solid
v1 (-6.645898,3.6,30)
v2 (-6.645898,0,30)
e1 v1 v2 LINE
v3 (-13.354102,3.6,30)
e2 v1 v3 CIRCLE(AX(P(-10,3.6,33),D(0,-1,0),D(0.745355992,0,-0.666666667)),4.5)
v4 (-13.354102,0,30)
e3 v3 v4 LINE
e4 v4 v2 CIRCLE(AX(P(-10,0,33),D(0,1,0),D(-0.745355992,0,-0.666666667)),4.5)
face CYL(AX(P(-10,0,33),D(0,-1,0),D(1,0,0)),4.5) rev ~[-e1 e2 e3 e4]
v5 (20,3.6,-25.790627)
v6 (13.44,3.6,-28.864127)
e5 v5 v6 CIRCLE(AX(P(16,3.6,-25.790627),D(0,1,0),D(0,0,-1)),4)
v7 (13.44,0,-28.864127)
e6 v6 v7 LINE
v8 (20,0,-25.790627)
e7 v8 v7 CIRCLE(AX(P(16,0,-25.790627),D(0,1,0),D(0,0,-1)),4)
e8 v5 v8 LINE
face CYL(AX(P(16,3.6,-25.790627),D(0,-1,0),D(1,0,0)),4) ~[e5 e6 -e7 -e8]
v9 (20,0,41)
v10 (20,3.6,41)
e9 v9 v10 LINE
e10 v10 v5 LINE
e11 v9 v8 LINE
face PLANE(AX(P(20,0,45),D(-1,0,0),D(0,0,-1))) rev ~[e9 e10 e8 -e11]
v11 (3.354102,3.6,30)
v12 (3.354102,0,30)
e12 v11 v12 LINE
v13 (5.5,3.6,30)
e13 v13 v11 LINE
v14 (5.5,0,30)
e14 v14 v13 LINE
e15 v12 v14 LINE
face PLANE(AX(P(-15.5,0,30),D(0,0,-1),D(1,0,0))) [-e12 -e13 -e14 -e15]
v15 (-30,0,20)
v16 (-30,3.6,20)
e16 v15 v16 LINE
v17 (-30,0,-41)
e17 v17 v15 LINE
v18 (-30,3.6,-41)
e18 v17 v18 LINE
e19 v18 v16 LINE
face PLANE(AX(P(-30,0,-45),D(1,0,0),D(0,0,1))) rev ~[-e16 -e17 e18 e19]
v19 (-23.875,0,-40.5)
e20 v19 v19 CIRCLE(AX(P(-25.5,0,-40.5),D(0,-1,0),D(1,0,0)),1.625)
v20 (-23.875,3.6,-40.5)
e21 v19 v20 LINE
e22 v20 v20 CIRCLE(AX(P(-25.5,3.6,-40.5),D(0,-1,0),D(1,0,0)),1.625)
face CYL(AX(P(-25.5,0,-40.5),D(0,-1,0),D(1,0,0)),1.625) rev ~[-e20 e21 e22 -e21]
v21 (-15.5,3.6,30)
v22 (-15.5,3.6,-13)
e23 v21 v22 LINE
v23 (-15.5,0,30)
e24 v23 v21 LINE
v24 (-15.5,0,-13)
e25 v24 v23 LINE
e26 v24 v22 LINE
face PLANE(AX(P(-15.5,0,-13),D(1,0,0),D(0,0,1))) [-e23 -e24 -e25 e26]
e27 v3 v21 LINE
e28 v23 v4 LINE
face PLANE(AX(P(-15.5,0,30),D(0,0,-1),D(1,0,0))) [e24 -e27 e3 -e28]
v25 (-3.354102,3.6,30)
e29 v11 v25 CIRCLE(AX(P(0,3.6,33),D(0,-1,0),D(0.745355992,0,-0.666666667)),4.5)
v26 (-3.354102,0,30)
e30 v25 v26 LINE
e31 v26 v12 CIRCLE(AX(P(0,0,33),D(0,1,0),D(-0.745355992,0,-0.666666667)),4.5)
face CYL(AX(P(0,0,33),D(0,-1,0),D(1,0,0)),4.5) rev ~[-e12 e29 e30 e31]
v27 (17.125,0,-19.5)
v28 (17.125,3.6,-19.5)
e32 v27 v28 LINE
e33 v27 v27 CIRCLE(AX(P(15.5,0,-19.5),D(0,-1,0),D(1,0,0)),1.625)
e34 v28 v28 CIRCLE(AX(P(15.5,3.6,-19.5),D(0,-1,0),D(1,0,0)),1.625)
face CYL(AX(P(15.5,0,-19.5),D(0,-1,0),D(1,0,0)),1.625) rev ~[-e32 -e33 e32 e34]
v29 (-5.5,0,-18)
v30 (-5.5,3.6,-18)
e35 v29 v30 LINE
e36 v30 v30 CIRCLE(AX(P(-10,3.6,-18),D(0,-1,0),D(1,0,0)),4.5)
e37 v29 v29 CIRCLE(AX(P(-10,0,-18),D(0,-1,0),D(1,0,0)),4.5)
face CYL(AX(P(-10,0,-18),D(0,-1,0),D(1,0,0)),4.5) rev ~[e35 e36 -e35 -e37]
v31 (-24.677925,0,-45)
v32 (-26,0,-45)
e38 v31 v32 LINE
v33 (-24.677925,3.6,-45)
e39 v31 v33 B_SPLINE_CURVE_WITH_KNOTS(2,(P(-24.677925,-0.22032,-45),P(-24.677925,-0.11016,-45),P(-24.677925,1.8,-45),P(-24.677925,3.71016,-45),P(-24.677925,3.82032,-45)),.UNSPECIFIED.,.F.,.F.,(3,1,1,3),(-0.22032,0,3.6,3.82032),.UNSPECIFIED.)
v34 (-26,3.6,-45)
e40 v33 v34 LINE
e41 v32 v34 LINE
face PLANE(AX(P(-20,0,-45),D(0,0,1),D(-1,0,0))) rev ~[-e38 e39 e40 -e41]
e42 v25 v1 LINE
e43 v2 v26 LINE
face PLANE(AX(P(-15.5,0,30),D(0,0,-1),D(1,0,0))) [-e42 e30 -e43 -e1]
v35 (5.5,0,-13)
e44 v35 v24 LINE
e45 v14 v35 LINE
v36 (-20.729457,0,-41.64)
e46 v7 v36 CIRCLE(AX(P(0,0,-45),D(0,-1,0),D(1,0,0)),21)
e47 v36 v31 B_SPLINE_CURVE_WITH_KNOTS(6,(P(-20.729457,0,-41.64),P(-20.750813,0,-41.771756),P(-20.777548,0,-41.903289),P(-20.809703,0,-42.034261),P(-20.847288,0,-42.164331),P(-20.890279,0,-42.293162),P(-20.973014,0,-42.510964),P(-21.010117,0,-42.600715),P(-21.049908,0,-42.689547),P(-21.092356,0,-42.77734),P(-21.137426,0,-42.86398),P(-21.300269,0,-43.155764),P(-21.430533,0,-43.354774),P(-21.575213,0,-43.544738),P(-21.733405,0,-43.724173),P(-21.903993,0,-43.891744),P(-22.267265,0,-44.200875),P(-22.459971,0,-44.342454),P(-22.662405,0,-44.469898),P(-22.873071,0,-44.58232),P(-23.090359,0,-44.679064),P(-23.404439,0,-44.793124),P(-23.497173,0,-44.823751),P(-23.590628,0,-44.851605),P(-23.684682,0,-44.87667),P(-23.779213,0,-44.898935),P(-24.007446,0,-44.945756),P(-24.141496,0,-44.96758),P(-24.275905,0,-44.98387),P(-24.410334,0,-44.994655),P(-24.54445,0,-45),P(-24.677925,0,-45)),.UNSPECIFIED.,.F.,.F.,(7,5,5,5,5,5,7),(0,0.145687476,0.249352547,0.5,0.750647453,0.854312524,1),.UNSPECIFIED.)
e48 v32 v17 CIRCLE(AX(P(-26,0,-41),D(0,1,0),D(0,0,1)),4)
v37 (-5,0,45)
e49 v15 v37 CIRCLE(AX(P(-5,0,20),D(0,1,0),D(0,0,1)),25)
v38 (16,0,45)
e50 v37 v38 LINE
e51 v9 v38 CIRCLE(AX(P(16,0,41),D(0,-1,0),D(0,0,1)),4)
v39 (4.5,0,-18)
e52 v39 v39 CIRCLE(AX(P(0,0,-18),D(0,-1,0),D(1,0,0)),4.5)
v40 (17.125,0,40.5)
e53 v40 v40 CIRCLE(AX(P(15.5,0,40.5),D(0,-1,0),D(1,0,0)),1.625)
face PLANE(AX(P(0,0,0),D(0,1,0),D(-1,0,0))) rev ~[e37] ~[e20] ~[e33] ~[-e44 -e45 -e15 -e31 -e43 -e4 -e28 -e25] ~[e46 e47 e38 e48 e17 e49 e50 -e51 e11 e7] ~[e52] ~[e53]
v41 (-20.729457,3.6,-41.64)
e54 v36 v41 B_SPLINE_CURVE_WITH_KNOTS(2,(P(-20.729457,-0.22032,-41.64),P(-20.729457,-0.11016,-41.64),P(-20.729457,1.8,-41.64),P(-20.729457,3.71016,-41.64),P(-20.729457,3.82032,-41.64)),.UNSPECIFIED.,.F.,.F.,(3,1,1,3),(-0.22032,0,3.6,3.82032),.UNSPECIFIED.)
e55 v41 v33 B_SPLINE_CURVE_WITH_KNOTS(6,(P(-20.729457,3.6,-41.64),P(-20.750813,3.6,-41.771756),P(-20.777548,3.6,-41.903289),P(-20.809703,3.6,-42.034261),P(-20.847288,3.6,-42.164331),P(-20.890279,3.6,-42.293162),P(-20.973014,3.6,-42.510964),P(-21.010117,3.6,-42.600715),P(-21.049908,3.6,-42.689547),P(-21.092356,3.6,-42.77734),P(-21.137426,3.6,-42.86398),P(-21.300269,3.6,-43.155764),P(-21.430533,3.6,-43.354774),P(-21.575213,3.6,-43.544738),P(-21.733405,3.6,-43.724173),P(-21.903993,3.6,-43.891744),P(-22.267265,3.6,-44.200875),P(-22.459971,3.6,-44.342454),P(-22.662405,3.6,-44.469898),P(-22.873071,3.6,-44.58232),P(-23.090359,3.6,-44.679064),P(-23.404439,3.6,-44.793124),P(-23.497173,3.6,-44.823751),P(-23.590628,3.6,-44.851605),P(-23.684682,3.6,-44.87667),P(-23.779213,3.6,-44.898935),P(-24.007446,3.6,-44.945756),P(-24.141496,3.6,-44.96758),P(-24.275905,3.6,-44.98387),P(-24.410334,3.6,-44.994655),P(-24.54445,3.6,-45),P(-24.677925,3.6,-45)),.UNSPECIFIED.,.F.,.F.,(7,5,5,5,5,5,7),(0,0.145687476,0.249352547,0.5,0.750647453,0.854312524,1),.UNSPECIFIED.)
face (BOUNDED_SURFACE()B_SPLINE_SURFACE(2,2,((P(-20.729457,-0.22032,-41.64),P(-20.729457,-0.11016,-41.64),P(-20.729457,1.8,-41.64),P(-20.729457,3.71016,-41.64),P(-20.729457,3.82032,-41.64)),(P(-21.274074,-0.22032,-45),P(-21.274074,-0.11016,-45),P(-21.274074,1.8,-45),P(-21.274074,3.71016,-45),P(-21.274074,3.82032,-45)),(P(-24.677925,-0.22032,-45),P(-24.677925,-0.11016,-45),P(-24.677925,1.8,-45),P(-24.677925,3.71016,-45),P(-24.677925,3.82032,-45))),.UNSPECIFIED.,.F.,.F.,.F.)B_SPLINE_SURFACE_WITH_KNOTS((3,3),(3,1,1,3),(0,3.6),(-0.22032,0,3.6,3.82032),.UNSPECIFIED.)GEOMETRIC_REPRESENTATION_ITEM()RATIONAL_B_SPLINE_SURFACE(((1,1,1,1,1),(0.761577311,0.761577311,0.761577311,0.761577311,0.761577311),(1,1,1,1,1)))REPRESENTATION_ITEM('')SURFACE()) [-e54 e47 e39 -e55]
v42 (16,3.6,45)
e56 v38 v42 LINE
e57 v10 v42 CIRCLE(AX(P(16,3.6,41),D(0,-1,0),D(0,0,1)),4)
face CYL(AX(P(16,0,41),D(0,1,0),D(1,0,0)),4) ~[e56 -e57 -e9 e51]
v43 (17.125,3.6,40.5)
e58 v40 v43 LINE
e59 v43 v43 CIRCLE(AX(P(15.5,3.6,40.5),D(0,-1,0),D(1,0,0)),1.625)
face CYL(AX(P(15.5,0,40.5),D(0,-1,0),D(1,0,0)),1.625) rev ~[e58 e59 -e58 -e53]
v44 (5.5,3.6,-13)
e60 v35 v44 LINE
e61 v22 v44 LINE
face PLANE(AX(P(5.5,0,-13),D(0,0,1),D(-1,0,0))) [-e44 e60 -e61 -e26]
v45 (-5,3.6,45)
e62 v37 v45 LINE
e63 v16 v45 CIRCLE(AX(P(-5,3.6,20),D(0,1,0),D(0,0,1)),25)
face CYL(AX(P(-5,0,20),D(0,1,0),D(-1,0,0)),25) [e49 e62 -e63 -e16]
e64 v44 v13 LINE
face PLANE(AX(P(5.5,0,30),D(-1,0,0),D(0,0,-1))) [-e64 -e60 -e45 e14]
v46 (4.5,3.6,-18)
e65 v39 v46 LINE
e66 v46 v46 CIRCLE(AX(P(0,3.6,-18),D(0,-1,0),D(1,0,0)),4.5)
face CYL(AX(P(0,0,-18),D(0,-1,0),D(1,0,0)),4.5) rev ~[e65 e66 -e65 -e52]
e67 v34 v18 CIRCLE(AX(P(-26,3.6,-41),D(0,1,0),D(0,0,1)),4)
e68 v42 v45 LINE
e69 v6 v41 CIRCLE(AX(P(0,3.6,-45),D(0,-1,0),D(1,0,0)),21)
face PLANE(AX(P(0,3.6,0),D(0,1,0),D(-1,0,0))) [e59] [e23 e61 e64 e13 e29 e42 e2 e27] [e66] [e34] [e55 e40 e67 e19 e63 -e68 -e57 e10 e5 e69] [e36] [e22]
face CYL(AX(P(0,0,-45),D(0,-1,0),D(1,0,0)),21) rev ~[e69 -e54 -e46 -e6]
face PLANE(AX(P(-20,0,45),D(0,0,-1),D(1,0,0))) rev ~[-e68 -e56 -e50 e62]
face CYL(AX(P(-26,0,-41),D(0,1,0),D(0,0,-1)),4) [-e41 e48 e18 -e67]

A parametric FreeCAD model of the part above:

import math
import FreeCAD as App
import Part
import Sketcher


def edges_at(feature, points):
    """Names of the edges that pass closest to the given points."""
    edges = feature.Shape.Edges
    near = lambda p: min(range(len(edges)), key=lambda i: edges[i].distToShape(Part.Vertex(*p))[0])
    return sorted({f"Edge{near(p) + 1}" for p in points})


def add_polygon(sketch, points):
    """Adds a closed chain of lines whose ends are joined by coincident constraints."""
    first, n = sketch.GeometryCount, len(points)
    for a, b in zip(points, points[1:] + points[:1]):
        sketch.addGeometry(Part.LineSegment(App.Vector(*a, 0), App.Vector(*b, 0)), False)
    for i in range(n):
        sketch.addConstraint(Sketcher.Constraint("Coincident", first + i, 2, first + (i + 1) % n, 1))

doc = App.newDocument("Part")
params = doc.addObject("Spreadsheet::Sheet", "Params")
for row, (alias, value) in enumerate([
    ("sketch1_radius", "20 mm"),
    ("sketch1_width", "10 mm"),
    ("sketch1_height", "90 mm"),
    ("pad1_length", "3.6 mm"),
    ("fillet_radius", "4 mm"),
    ("sketch2_diameter", "42 mm"),
    ("pocket1_length", "10 mm"),
    ("fillet2_radius", "4 mm"),
    ("sketch3_diameter", "3.25 mm"),
    ("pocket2_length", "7 mm"),
    ("sketch4_width", "21 mm"),
    ("sketch4_height", "43 mm"),
    ("pocket3_length", "10 mm"),
    ("sketch5_diameter", "9 mm"),
    ("pocket4_length", "10 mm"),
    ("fillet3_radius", "25 mm"),
], start=1):
    params.set(f"A{row}", alias)
    params.set(f"B{row}", "=" + value)
    params.setAlias(f"B{row}", alias)

body = doc.addObject("PartDesign::Body", "Body")

sketch1 = body.newObject("Sketcher::SketchObject", "Sketch")
sketch1.AttachmentSupport = (doc.getObject("XZ_Plane"), [""])
sketch1.MapMode = "FlatFace"
sketch1.addGeometry(Part.LineSegment(App.Vector(20, 45, 0), App.Vector(20, -45, 0)), False)
sketch1.addGeometry(Part.ArcOfCircle(Part.Circle(App.Vector(0, -45, 0), App.Vector(0, 0, 1), 20), math.radians(180), math.radians(360)), False)
sketch1.addGeometry(Part.LineSegment(App.Vector(-20, -45, 0), App.Vector(-30, -45, 0)), False)
sketch1.addGeometry(Part.LineSegment(App.Vector(-30, -45, 0), App.Vector(-30, 45, 0)), False)
sketch1.addGeometry(Part.LineSegment(App.Vector(-30, 45, 0), App.Vector(20, 45, 0)), False)
sketch1.addConstraint(Sketcher.Constraint("Tangent", 0, 2, 1, 2))
sketch1.addConstraint(Sketcher.Constraint("Coincident", 1, 1, 2, 1))
sketch1.addConstraint(Sketcher.Constraint("Coincident", 2, 2, 3, 1))
sketch1.addConstraint(Sketcher.Constraint("Coincident", 3, 2, 4, 1))
sketch1.addConstraint(Sketcher.Constraint("Coincident", 4, 2, 0, 1))
sketch1.addConstraint(Sketcher.Constraint("Vertical", 0))
sketch1.addConstraint(Sketcher.Constraint("Horizontal", 2))
sketch1.addConstraint(Sketcher.Constraint("Vertical", 3))
sketch1.addConstraint(Sketcher.Constraint("Horizontal", 4))
sketch1.addConstraint(Sketcher.Constraint("Symmetric", 1, 1, 4, 2, -1, 1))
sketch1.addConstraint(Sketcher.Constraint("Horizontal", 0, 2, 1, 1))
sketch1.addConstraint(Sketcher.Constraint("Radius", 1, 20.0))
sketch1.addConstraint(Sketcher.Constraint("DistanceX", 2, 2, 2, 1, 10.0))
sketch1.addConstraint(Sketcher.Constraint("DistanceY", 0, 2, 0, 1, 90.0))
sketch1.setExpression("Constraints[11]", "Params.sketch1_radius")
sketch1.setExpression("Constraints[12]", "Params.sketch1_width")
sketch1.setExpression("Constraints[13]", "Params.sketch1_height")
pad1 = body.newObject("PartDesign::Pad", "Pad")
pad1.Profile = sketch1
pad1.setExpression("Length", "Params.pad1_length")
pad1.Reversed = True
doc.recompute()

fillet = body.newObject("PartDesign::Fillet", "Fillet")
fillet.Base = (pad1, edges_at(pad1, [(-20, 1.8, -45), (-30, 1.8, -45), (20, 1.8, 45)]))
fillet.setExpression("Radius", "Params.fillet_radius")

sketch2 = body.newObject("Sketcher::SketchObject", "Sketch001")
sketch2.AttachmentSupport = (doc.getObject("XZ_Plane"), [""])
sketch2.MapMode = "FlatFace"
sketch2.addGeometry(Part.Circle(App.Vector(0, -45, 0), App.Vector(0, 0, 1), 21), False)
sketch2.addConstraint(Sketcher.Constraint("PointOnObject", 0, 3, -2))
sketch2.addConstraint(Sketcher.Constraint("Diameter", 0, 42.0))
sketch2.addConstraint(Sketcher.Constraint("DistanceY", 0, 3, -1, 1, 45.0))
sketch2.setExpression("Constraints[1]", "Params.sketch2_diameter")
pocket1 = body.newObject("PartDesign::Pocket", "Pocket")
pocket1.Profile = sketch2
pocket1.setExpression("Length", "Params.pocket1_length")
doc.recompute()

fillet2 = body.newObject("PartDesign::Fillet", "Fillet001")
fillet2.Base = (pocket1, edges_at(pocket1, [(20, 1.8, -38.597), (-20.974, 1.8, -46.04)]))
fillet2.setExpression("Radius", "Params.fillet2_radius")

sketch3 = body.newObject("Sketcher::SketchObject", "Sketch002")
sketch3.AttachmentSupport = (doc.getObject("XZ_Plane"), [""])
sketch3.MapMode = "FlatFace"
sketch3.addGeometry(Part.Circle(App.Vector(-25.5, -40.5, 0), App.Vector(0, 0, 1), 1.6), False)
sketch3.addGeometry(Part.Circle(App.Vector(15.5, -19.5, 0), App.Vector(0, 0, 1), 1.6), False)
sketch3.addGeometry(Part.Circle(App.Vector(15.5, 40.5, 0), App.Vector(0, 0, 1), 1.6), False)
sketch3.addConstraint(Sketcher.Constraint("Equal", 0, 1))
sketch3.addConstraint(Sketcher.Constraint("Equal", 1, 2))
sketch3.addConstraint(Sketcher.Constraint("Vertical", 1, 3, 2, 3))
sketch3.addConstraint(Sketcher.Constraint("Diameter", 0, 3.25))
sketch3.addConstraint(Sketcher.Constraint("DistanceY", 1, 3, 2, 3, 60.0))
sketch3.addConstraint(Sketcher.Constraint("DistanceX", 0, 3, 1, 3, 41.0))
sketch3.addConstraint(Sketcher.Constraint("DistanceY", 0, 3, 1, 3, 21.0))
sketch3.addConstraint(Sketcher.Constraint("DistanceX", 0, 3, -1, 1, 25.5))
sketch3.addConstraint(Sketcher.Constraint("DistanceY", 0, 3, -1, 1, 40.5))
sketch3.setExpression("Constraints[3]", "Params.sketch3_diameter")
pocket2 = body.newObject("PartDesign::Pocket", "Pocket001")
pocket2.Profile = sketch3
pocket2.setExpression("Length", "Params.pocket2_length")

sketch4 = body.newObject("Sketcher::SketchObject", "Sketch003")
sketch4.AttachmentSupport = (doc.getObject("XZ_Plane"), [""])
sketch4.MapMode = "FlatFace"
add_polygon(sketch4, [(6, 30), (-16, 30), (-16, -13), (6, -13)])
sketch4.addConstraint(Sketcher.Constraint("Horizontal", 0))
sketch4.addConstraint(Sketcher.Constraint("Vertical", 1))
sketch4.addConstraint(Sketcher.Constraint("Horizontal", 2))
sketch4.addConstraint(Sketcher.Constraint("Vertical", 3))
sketch4.addConstraint(Sketcher.Constraint("DistanceX", 0, 2, 0, 1, 21.0))
sketch4.addConstraint(Sketcher.Constraint("DistanceY", 1, 2, 1, 1, 43.0))
sketch4.addConstraint(Sketcher.Constraint("DistanceY", -1, 1, 0, 2, 30.0))
sketch4.addConstraint(Sketcher.Constraint("DistanceX", 0, 2, -1, 1, 15.5))
sketch4.setExpression("Constraints[8]", "Params.sketch4_width")
sketch4.setExpression("Constraints[9]", "Params.sketch4_height")
pocket3 = body.newObject("PartDesign::Pocket", "Pocket002")
pocket3.Profile = sketch4
pocket3.setExpression("Length", "Params.pocket3_length")

sketch5 = body.newObject("Sketcher::SketchObject", "Sketch004")
sketch5.AttachmentSupport = (doc.getObject("XZ_Plane"), [""])
sketch5.MapMode = "FlatFace"
sketch5.addGeometry(Part.Circle(App.Vector(0, -18, 0), App.Vector(0, 0, 1), 4.5), False)
sketch5.addGeometry(Part.Circle(App.Vector(0, 33, 0), App.Vector(0, 0, 1), 4.5), False)
sketch5.addGeometry(Part.Circle(App.Vector(-10, -18, 0), App.Vector(0, 0, 1), 4.5), False)
sketch5.addGeometry(Part.Circle(App.Vector(-10, 33, 0), App.Vector(0, 0, 1), 4.5), False)
sketch5.addConstraint(Sketcher.Constraint("Equal", 0, 1))
sketch5.addConstraint(Sketcher.Constraint("Equal", 1, 2))
sketch5.addConstraint(Sketcher.Constraint("Equal", 2, 3))
sketch5.addConstraint(Sketcher.Constraint("PointOnObject", 0, 3, -2))
sketch5.addConstraint(Sketcher.Constraint("PointOnObject", 1, 3, -2))
sketch5.addConstraint(Sketcher.Constraint("Horizontal", 0, 3, 2, 3))
sketch5.addConstraint(Sketcher.Constraint("Horizontal", 1, 3, 3, 3))
sketch5.addConstraint(Sketcher.Constraint("Vertical", 2, 3, 3, 3))
sketch5.addConstraint(Sketcher.Constraint("Diameter", 0, 9.0))
sketch5.addConstraint(Sketcher.Constraint("DistanceX", 2, 3, -1, 1, 10.0))
sketch5.addConstraint(Sketcher.Constraint("DistanceY", 0, 3, 1, 3, 51.0))
sketch5.addConstraint(Sketcher.Constraint("DistanceY", 0, 3, -1, 1, 18.0))
sketch5.setExpression("Constraints[8]", "Params.sketch5_diameter")
pocket4 = body.newObject("PartDesign::Pocket", "Pocket003")
pocket4.Profile = sketch5
pocket4.setExpression("Length", "Params.pocket4_length")
doc.recompute()

fillet3 = body.newObject("PartDesign::Fillet", "Fillet002")
fillet3.Base = (pocket4, edges_at(pocket4, [(-30, 1.8, 45)]))
fillet3.setExpression("Radius", "Params.fillet3_radius")

doc.recompute()
